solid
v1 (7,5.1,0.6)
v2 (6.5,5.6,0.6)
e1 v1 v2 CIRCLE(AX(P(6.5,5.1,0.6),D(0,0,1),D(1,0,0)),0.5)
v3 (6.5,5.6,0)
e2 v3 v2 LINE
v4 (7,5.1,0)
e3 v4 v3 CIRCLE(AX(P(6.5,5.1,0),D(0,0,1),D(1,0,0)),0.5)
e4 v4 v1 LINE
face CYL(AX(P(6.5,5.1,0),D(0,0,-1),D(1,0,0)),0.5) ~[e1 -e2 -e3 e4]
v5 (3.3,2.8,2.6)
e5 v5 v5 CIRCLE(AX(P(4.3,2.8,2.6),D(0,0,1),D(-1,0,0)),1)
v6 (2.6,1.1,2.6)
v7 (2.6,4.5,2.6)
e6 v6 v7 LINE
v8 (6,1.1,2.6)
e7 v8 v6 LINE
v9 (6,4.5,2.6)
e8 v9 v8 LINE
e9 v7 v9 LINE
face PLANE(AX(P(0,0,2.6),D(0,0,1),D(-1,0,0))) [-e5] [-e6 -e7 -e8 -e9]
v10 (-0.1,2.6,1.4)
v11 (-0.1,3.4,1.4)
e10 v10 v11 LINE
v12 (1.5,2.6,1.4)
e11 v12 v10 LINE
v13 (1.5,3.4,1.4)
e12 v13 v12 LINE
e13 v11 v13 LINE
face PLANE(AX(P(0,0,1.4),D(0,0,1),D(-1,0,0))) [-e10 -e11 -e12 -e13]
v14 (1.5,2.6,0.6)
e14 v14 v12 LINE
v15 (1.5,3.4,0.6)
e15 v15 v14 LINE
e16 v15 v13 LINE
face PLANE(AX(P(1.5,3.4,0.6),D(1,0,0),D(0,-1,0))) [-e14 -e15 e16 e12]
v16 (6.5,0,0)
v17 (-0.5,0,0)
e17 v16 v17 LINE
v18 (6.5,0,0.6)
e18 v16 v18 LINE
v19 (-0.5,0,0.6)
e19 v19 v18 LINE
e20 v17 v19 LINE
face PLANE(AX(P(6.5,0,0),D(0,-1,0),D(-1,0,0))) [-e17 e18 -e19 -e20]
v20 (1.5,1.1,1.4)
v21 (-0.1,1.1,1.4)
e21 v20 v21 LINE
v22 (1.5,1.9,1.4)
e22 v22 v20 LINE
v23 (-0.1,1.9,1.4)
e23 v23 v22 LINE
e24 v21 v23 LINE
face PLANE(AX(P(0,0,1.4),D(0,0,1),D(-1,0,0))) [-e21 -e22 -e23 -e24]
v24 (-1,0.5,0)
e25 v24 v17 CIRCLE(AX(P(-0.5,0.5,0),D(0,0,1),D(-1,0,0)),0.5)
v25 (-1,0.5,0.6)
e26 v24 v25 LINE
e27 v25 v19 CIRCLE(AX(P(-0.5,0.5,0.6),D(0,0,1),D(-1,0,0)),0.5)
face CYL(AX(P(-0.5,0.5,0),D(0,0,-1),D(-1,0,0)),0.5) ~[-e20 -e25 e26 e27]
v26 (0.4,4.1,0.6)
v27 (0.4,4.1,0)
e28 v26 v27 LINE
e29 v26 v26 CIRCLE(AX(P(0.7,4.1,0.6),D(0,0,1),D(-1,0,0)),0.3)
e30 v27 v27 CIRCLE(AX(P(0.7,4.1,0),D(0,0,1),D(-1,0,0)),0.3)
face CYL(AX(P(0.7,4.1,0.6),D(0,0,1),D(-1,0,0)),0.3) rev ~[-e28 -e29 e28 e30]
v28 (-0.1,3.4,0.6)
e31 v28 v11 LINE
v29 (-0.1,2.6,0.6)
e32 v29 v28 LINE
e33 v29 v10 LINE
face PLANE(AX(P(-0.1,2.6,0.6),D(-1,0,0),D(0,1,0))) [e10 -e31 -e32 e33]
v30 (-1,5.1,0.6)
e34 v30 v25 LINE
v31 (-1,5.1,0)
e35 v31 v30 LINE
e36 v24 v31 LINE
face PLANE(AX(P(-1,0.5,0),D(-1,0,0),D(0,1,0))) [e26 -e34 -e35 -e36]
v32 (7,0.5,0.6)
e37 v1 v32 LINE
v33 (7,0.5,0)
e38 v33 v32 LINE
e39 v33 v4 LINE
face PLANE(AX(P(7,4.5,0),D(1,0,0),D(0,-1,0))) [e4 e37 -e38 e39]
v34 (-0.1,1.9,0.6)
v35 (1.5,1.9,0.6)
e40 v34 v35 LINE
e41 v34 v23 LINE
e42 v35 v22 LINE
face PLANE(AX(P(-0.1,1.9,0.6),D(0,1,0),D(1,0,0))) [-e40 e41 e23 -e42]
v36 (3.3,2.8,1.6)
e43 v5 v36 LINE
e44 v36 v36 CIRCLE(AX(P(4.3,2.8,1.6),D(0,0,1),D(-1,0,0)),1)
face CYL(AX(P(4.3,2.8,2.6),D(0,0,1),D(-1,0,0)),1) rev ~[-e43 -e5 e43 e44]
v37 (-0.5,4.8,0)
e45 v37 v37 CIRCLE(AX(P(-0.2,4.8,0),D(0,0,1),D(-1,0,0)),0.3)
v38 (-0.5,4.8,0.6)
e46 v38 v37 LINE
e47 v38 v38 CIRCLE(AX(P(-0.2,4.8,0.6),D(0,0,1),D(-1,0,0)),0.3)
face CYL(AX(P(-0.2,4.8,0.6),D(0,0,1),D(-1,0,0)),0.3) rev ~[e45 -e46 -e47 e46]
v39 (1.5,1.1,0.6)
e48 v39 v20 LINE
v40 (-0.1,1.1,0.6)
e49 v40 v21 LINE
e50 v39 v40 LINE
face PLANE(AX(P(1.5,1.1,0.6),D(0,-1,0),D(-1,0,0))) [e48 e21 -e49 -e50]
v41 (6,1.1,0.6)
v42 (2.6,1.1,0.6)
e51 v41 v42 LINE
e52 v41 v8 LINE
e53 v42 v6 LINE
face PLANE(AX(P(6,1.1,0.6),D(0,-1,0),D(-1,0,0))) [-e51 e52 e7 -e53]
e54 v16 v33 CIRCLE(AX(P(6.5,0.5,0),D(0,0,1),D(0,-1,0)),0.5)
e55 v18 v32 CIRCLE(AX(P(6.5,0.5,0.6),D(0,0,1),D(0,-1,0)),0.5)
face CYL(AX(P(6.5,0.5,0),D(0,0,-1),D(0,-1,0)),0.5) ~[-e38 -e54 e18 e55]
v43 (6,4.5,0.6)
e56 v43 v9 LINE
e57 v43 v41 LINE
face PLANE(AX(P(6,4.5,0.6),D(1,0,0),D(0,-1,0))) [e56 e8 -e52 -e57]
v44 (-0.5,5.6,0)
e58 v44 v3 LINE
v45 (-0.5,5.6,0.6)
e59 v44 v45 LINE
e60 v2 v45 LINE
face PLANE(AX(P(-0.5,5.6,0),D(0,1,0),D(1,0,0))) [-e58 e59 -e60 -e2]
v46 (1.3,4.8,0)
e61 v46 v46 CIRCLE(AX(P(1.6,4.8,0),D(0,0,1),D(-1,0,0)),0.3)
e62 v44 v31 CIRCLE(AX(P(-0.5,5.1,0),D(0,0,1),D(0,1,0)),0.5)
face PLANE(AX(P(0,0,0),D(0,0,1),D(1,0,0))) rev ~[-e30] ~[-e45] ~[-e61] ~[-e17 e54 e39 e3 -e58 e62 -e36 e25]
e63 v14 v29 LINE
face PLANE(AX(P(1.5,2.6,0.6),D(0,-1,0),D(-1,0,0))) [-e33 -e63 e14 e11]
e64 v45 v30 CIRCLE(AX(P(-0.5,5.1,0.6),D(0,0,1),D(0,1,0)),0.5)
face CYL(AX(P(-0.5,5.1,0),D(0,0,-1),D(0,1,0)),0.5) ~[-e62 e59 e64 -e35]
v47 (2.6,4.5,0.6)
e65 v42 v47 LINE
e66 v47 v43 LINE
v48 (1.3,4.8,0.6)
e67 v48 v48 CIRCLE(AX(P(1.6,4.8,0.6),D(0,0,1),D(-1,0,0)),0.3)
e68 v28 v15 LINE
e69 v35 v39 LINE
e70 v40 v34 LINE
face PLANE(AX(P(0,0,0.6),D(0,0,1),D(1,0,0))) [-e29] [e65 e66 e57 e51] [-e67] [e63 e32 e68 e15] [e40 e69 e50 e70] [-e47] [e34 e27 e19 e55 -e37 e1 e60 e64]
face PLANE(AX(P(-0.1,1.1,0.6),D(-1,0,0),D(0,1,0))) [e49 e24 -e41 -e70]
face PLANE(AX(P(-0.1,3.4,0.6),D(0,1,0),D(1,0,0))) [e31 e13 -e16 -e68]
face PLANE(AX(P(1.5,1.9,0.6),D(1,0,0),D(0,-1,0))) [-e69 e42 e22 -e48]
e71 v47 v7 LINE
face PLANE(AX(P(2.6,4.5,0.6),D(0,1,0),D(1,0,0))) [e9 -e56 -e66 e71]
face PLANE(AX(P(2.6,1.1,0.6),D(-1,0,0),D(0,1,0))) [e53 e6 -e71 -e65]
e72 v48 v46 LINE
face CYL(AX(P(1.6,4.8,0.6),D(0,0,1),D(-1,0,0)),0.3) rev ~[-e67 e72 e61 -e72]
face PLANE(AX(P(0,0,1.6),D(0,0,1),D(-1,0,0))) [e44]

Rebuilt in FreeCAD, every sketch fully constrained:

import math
import FreeCAD as App
import Part
import Sketcher

V = App.Vector
Q = App.Units.Quantity


def add_polygon(sketch, points):
    """Adds a closed chain of lines whose ends are joined by coincident constraints."""
    first, n = sketch.GeometryCount, len(points)
    for a, b in zip(points, points[1:] + points[:1]):
        sketch.addGeometry(Part.LineSegment(App.Vector(*a, 0), App.Vector(*b, 0)), False)
    for i in range(n):
        sketch.addConstraint(Sketcher.Constraint("Coincident", first + i, 2, first + (i + 1) % n, 1))

doc = App.newDocument("Part")
params = doc.addObject("Spreadsheet::Sheet", "Params")
for row, (alias, value) in enumerate([
    ("sketch1_radius", "0.5 mm"),
    ("sketch1_width", "7 mm"),
    ("sketch1_height", "4.6 mm"),
    ("pad1_length", "0.6 mm"),
    ("sketch2_width", "3.4 mm"),
    ("pad2_length", "2 mm"),
    ("sketch3_diameter", "2 mm"),
    ("pocket1_length", "1 mm"),
    ("sketch4_width", "1.6 mm"),
    ("sketch4_height", "0.8 mm"),
    ("pad3_length", "0.8 mm"),
    ("sketch5_diameter", "0.6 mm"),
    ("pocket2_length", "0.6 mm"),
], start=1):
    params.set(f"A{row}", alias)
    params.set(f"B{row}", "=" + value)
    params.setAlias(f"B{row}", alias)

body = doc.addObject("PartDesign::Body", "Body")

# Sketch on XY plane
sketch1 = doc.addObject("Sketcher::SketchObject", "Sketch")
body.addObject(sketch1)
sketch1.AttachmentSupport = (doc.XY_Plane, [""])
sketch1.MapMode = "FlatFace"
sketch1.addGeometry(Part.LineSegment(V(7, 0.5, 0), V(7, 5.1, 0)), False)
sketch1.addGeometry(Part.ArcOfCircle(Part.Circle(V(6.5, 5.1, 0), V(0, 0, 1), 0.5), math.radians(0), math.radians(90)), False)
sketch1.addGeometry(Part.LineSegment(V(6.5, 5.6, 0), V(-0.5, 5.6, 0)), False)
sketch1.addGeometry(Part.ArcOfCircle(Part.Circle(V(-0.5, 5.1, 0), V(0, 0, 1), 0.5), math.radians(90), math.radians(180)), False)
sketch1.addGeometry(Part.LineSegment(V(-1, 5.1, 0), V(-1, 0.5, 0)), False)
sketch1.addGeometry(Part.ArcOfCircle(Part.Circle(V(-0.5, 0.5, 0), V(0, 0, 1), 0.5), math.radians(180), math.radians(270)), False)
sketch1.addGeometry(Part.LineSegment(V(-0.5, 0, 0), V(6.5, 0, 0)), False)
sketch1.addGeometry(Part.ArcOfCircle(Part.Circle(V(6.5, 0.5, 0), V(0, 0, 1), 0.5), math.radians(-90), math.radians(0)), False)
sketch1.addConstraint(Sketcher.Constraint("Tangent", 0, 2, 1, 1))
sketch1.addConstraint(Sketcher.Constraint("Tangent", 1, 2, 2, 1))
sketch1.addConstraint(Sketcher.Constraint("Tangent", 2, 2, 3, 1))
sketch1.addConstraint(Sketcher.Constraint("Tangent", 3, 2, 4, 1))
sketch1.addConstraint(Sketcher.Constraint("Tangent", 4, 2, 5, 1))
sketch1.addConstraint(Sketcher.Constraint("Tangent", 5, 2, 6, 1))
sketch1.addConstraint(Sketcher.Constraint("Tangent", 6, 2, 7, 1))
sketch1.addConstraint(Sketcher.Constraint("Tangent", 7, 2, 0, 1))
sketch1.addConstraint(Sketcher.Constraint("Vertical", 0))
sketch1.addConstraint(Sketcher.Constraint("Horizontal", 2))
sketch1.addConstraint(Sketcher.Constraint("Vertical", 4))
sketch1.addConstraint(Sketcher.Constraint("Horizontal", 6))
sketch1.addConstraint(Sketcher.Constraint("Equal", 1, 3))
sketch1.addConstraint(Sketcher.Constraint("Equal", 3, 5))
sketch1.addConstraint(Sketcher.Constraint("Equal", 5, 7))
sketch1.addConstraint(Sketcher.Constraint("PointOnObject", 5, 2, -1))
sketch1.addConstraint(Sketcher.Constraint("Radius", 1, Q("0.5 mm")))
sketch1.addConstraint(Sketcher.Constraint("DistanceX", 2, 2, 2, 1, Q("7 mm")))
sketch1.addConstraint(Sketcher.Constraint("DistanceY", 0, 1, 0, 2, Q("4.6 mm")))
sketch1.addConstraint(Sketcher.Constraint("DistanceX", -1, 1, 0, 2, Q("7 mm")))
sketch1.setExpression("Constraints[16]", "Params.sketch1_radius")
sketch1.setExpression("Constraints[17]", "Params.sketch1_width")
sketch1.setExpression("Constraints[18]", "Params.sketch1_height")
pad1 = doc.addObject("PartDesign::Pad", "Pad")
body.addObject(pad1)
pad1.Profile = sketch1
pad1.setExpression("Length", "Params.pad1_length")

# Sketch on XY plane
sketch2 = doc.addObject("Sketcher::SketchObject", "Sketch001")
body.addObject(sketch2)
sketch2.AttachmentSupport = (doc.XY_Plane, [""])
sketch2.MapMode = "FlatFace"
sketch2.AttachmentOffset = App.Placement(V(0, 0, 0.6), App.Rotation())
add_polygon(sketch2, [(2.6, 4.5), (2.6, 1.1), (6, 1.1), (6, 4.5)])  # lines 0-3
sketch2.addConstraint(Sketcher.Constraint("Vertical", 0))
sketch2.addConstraint(Sketcher.Constraint("Horizontal", 1))
sketch2.addConstraint(Sketcher.Constraint("Vertical", 2))
sketch2.addConstraint(Sketcher.Constraint("Horizontal", 3))
sketch2.addConstraint(Sketcher.Constraint("Equal", 3, 0))
sketch2.addConstraint(Sketcher.Constraint("DistanceX", 1, 1, 1, 2, Q("3.4 mm")))
sketch2.addConstraint(Sketcher.Constraint("DistanceX", -1, 1, 1, 2, Q("6 mm")))
sketch2.addConstraint(Sketcher.Constraint("DistanceY", -1, 1, 0, 2, Q("1.1 mm")))
sketch2.setExpression("Constraints[9]", "Params.sketch2_width")
pad2 = doc.addObject("PartDesign::Pad", "Pad001")
body.addObject(pad2)
pad2.Profile = sketch2
pad2.setExpression("Length", "Params.pad2_length")

# Sketch on XY plane
sketch3 = doc.addObject("Sketcher::SketchObject", "Sketch002")
body.addObject(sketch3)
sketch3.AttachmentSupport = (doc.XY_Plane, [""])
sketch3.MapMode = "FlatFace"
sketch3.AttachmentOffset = App.Placement(V(0, 0, 2.6), App.Rotation())
sketch3.addGeometry(Part.Circle(V(4.3, 2.8, 0), V(0, 0, 1), 1), False)
sketch3.addConstraint(Sketcher.Constraint("Diameter", 0, Q("2 mm")))
sketch3.addConstraint(Sketcher.Constraint("DistanceX", -1, 1, 0, 3, Q("4.3 mm")))
sketch3.addConstraint(Sketcher.Constraint("DistanceY", -1, 1, 0, 3, Q("2.8 mm")))
sketch3.setExpression("Constraints[0]", "Params.sketch3_diameter")
pocket1 = doc.addObject("PartDesign::Pocket", "Pocket")
body.addObject(pocket1)
pocket1.Profile = sketch3
pocket1.setExpression("Length", "Params.pocket1_length")

# Sketch on XY plane
sketch4 = doc.addObject("Sketcher::SketchObject", "Sketch003")
body.addObject(sketch4)
sketch4.AttachmentSupport = (doc.XY_Plane, [""])
sketch4.MapMode = "FlatFace"
sketch4.AttachmentOffset = App.Placement(V(0, 0, 0.6), App.Rotation())
add_polygon(sketch4, [(-0.1, 1.1), (1.5, 1.1), (1.5, 1.9), (-0.1, 1.9)])  # lines 0-3
add_polygon(sketch4, [(-0.1, 2.6), (1.5, 2.6), (1.5, 3.4), (-0.1, 3.4)])  # lines 4-7
sketch4.addConstraint(Sketcher.Constraint("Horizontal", 0))
sketch4.addConstraint(Sketcher.Constraint("Vertical", 1))
sketch4.addConstraint(Sketcher.Constraint("Horizontal", 2))
sketch4.addConstraint(Sketcher.Constraint("Vertical", 3))
sketch4.addConstraint(Sketcher.Constraint("Horizontal", 4))
sketch4.addConstraint(Sketcher.Constraint("Vertical", 5))
sketch4.addConstraint(Sketcher.Constraint("Horizontal", 6))
sketch4.addConstraint(Sketcher.Constraint("Vertical", 7))
sketch4.addConstraint(Sketcher.Constraint("Vertical", 1, 2, 4, 2))
sketch4.addConstraint(Sketcher.Constraint("Vertical", 3, 2, 6, 2))
sketch4.addConstraint(Sketcher.Constraint("Equal", 3, 5))
sketch4.addConstraint(Sketcher.Constraint("DistanceX", 0, 1, 0, 2, Q("1.6 mm")))
sketch4.addConstraint(Sketcher.Constraint("DistanceY", 1, 1, 1, 2, Q("0.8 mm")))
sketch4.addConstraint(Sketcher.Constraint("DistanceX", -1, 1, 0, 2, Q("1.5 mm")))
sketch4.addConstraint(Sketcher.Constraint("DistanceY", -1, 1, 0, 2, Q("1.1 mm")))
sketch4.addConstraint(Sketcher.Constraint("DistanceY", -1, 1, 4, 2, Q("2.6 mm")))
sketch4.setExpression("Constraints[19]", "Params.sketch4_width")
sketch4.setExpression("Constraints[20]", "Params.sketch4_height")
pad3 = doc.addObject("PartDesign::Pad", "Pad002")
body.addObject(pad3)
pad3.Profile = sketch4
pad3.setExpression("Length", "Params.pad3_length")

# Sketch on XY plane
sketch5 = doc.addObject("Sketcher::SketchObject", "Sketch004")
body.addObject(sketch5)
sketch5.AttachmentSupport = (doc.XY_Plane, [""])
sketch5.MapMode = "FlatFace"
sketch5.AttachmentOffset = App.Placement(V(0, 0, 0.6), App.Rotation())
sketch5.addGeometry(Part.Circle(V(-0.2, 4.8, 0), V(0, 0, 1), 0.3), False)
sketch5.addGeometry(Part.Circle(V(1.6, 4.8, 0), V(0, 0, 1), 0.3), False)
sketch5.addGeometry(Part.Circle(V(0.7, 4.1, 0), V(0, 0, 1), 0.3), False)
sketch5.addConstraint(Sketcher.Constraint("Equal", 0, 1))
sketch5.addConstraint(Sketcher.Constraint("Equal", 1, 2))
sketch5.addConstraint(Sketcher.Constraint("Horizontal", 0, 3, 1, 3))
sketch5.addConstraint(Sketcher.Constraint("Diameter", 0, Q("0.6 mm")))
sketch5.addConstraint(Sketcher.Constraint("DistanceX", 0, 3, -1, 1, Q("0.2 mm")))
sketch5.addConstraint(Sketcher.Constraint("DistanceY", -1, 1, 0, 3, Q("4.8 mm")))
sketch5.addConstraint(Sketcher.Constraint("DistanceX", -1, 1, 1, 3, Q("1.6 mm")))
sketch5.addConstraint(Sketcher.Constraint("DistanceX", -1, 1, 2, 3, Q("0.7 mm")))
sketch5.addConstraint(Sketcher.Constraint("DistanceY", -1, 1, 2, 3, Q("4.1 mm")))
sketch5.setExpression("Constraints[3]", "Params.sketch5_diameter")
pocket2 = doc.addObject("PartDesign::Pocket", "Pocket001")
body.addObject(pocket2)
pocket2.Profile = sketch5
pocket2.setExpression("Length", "Params.pocket2_length")

doc.recompute()
